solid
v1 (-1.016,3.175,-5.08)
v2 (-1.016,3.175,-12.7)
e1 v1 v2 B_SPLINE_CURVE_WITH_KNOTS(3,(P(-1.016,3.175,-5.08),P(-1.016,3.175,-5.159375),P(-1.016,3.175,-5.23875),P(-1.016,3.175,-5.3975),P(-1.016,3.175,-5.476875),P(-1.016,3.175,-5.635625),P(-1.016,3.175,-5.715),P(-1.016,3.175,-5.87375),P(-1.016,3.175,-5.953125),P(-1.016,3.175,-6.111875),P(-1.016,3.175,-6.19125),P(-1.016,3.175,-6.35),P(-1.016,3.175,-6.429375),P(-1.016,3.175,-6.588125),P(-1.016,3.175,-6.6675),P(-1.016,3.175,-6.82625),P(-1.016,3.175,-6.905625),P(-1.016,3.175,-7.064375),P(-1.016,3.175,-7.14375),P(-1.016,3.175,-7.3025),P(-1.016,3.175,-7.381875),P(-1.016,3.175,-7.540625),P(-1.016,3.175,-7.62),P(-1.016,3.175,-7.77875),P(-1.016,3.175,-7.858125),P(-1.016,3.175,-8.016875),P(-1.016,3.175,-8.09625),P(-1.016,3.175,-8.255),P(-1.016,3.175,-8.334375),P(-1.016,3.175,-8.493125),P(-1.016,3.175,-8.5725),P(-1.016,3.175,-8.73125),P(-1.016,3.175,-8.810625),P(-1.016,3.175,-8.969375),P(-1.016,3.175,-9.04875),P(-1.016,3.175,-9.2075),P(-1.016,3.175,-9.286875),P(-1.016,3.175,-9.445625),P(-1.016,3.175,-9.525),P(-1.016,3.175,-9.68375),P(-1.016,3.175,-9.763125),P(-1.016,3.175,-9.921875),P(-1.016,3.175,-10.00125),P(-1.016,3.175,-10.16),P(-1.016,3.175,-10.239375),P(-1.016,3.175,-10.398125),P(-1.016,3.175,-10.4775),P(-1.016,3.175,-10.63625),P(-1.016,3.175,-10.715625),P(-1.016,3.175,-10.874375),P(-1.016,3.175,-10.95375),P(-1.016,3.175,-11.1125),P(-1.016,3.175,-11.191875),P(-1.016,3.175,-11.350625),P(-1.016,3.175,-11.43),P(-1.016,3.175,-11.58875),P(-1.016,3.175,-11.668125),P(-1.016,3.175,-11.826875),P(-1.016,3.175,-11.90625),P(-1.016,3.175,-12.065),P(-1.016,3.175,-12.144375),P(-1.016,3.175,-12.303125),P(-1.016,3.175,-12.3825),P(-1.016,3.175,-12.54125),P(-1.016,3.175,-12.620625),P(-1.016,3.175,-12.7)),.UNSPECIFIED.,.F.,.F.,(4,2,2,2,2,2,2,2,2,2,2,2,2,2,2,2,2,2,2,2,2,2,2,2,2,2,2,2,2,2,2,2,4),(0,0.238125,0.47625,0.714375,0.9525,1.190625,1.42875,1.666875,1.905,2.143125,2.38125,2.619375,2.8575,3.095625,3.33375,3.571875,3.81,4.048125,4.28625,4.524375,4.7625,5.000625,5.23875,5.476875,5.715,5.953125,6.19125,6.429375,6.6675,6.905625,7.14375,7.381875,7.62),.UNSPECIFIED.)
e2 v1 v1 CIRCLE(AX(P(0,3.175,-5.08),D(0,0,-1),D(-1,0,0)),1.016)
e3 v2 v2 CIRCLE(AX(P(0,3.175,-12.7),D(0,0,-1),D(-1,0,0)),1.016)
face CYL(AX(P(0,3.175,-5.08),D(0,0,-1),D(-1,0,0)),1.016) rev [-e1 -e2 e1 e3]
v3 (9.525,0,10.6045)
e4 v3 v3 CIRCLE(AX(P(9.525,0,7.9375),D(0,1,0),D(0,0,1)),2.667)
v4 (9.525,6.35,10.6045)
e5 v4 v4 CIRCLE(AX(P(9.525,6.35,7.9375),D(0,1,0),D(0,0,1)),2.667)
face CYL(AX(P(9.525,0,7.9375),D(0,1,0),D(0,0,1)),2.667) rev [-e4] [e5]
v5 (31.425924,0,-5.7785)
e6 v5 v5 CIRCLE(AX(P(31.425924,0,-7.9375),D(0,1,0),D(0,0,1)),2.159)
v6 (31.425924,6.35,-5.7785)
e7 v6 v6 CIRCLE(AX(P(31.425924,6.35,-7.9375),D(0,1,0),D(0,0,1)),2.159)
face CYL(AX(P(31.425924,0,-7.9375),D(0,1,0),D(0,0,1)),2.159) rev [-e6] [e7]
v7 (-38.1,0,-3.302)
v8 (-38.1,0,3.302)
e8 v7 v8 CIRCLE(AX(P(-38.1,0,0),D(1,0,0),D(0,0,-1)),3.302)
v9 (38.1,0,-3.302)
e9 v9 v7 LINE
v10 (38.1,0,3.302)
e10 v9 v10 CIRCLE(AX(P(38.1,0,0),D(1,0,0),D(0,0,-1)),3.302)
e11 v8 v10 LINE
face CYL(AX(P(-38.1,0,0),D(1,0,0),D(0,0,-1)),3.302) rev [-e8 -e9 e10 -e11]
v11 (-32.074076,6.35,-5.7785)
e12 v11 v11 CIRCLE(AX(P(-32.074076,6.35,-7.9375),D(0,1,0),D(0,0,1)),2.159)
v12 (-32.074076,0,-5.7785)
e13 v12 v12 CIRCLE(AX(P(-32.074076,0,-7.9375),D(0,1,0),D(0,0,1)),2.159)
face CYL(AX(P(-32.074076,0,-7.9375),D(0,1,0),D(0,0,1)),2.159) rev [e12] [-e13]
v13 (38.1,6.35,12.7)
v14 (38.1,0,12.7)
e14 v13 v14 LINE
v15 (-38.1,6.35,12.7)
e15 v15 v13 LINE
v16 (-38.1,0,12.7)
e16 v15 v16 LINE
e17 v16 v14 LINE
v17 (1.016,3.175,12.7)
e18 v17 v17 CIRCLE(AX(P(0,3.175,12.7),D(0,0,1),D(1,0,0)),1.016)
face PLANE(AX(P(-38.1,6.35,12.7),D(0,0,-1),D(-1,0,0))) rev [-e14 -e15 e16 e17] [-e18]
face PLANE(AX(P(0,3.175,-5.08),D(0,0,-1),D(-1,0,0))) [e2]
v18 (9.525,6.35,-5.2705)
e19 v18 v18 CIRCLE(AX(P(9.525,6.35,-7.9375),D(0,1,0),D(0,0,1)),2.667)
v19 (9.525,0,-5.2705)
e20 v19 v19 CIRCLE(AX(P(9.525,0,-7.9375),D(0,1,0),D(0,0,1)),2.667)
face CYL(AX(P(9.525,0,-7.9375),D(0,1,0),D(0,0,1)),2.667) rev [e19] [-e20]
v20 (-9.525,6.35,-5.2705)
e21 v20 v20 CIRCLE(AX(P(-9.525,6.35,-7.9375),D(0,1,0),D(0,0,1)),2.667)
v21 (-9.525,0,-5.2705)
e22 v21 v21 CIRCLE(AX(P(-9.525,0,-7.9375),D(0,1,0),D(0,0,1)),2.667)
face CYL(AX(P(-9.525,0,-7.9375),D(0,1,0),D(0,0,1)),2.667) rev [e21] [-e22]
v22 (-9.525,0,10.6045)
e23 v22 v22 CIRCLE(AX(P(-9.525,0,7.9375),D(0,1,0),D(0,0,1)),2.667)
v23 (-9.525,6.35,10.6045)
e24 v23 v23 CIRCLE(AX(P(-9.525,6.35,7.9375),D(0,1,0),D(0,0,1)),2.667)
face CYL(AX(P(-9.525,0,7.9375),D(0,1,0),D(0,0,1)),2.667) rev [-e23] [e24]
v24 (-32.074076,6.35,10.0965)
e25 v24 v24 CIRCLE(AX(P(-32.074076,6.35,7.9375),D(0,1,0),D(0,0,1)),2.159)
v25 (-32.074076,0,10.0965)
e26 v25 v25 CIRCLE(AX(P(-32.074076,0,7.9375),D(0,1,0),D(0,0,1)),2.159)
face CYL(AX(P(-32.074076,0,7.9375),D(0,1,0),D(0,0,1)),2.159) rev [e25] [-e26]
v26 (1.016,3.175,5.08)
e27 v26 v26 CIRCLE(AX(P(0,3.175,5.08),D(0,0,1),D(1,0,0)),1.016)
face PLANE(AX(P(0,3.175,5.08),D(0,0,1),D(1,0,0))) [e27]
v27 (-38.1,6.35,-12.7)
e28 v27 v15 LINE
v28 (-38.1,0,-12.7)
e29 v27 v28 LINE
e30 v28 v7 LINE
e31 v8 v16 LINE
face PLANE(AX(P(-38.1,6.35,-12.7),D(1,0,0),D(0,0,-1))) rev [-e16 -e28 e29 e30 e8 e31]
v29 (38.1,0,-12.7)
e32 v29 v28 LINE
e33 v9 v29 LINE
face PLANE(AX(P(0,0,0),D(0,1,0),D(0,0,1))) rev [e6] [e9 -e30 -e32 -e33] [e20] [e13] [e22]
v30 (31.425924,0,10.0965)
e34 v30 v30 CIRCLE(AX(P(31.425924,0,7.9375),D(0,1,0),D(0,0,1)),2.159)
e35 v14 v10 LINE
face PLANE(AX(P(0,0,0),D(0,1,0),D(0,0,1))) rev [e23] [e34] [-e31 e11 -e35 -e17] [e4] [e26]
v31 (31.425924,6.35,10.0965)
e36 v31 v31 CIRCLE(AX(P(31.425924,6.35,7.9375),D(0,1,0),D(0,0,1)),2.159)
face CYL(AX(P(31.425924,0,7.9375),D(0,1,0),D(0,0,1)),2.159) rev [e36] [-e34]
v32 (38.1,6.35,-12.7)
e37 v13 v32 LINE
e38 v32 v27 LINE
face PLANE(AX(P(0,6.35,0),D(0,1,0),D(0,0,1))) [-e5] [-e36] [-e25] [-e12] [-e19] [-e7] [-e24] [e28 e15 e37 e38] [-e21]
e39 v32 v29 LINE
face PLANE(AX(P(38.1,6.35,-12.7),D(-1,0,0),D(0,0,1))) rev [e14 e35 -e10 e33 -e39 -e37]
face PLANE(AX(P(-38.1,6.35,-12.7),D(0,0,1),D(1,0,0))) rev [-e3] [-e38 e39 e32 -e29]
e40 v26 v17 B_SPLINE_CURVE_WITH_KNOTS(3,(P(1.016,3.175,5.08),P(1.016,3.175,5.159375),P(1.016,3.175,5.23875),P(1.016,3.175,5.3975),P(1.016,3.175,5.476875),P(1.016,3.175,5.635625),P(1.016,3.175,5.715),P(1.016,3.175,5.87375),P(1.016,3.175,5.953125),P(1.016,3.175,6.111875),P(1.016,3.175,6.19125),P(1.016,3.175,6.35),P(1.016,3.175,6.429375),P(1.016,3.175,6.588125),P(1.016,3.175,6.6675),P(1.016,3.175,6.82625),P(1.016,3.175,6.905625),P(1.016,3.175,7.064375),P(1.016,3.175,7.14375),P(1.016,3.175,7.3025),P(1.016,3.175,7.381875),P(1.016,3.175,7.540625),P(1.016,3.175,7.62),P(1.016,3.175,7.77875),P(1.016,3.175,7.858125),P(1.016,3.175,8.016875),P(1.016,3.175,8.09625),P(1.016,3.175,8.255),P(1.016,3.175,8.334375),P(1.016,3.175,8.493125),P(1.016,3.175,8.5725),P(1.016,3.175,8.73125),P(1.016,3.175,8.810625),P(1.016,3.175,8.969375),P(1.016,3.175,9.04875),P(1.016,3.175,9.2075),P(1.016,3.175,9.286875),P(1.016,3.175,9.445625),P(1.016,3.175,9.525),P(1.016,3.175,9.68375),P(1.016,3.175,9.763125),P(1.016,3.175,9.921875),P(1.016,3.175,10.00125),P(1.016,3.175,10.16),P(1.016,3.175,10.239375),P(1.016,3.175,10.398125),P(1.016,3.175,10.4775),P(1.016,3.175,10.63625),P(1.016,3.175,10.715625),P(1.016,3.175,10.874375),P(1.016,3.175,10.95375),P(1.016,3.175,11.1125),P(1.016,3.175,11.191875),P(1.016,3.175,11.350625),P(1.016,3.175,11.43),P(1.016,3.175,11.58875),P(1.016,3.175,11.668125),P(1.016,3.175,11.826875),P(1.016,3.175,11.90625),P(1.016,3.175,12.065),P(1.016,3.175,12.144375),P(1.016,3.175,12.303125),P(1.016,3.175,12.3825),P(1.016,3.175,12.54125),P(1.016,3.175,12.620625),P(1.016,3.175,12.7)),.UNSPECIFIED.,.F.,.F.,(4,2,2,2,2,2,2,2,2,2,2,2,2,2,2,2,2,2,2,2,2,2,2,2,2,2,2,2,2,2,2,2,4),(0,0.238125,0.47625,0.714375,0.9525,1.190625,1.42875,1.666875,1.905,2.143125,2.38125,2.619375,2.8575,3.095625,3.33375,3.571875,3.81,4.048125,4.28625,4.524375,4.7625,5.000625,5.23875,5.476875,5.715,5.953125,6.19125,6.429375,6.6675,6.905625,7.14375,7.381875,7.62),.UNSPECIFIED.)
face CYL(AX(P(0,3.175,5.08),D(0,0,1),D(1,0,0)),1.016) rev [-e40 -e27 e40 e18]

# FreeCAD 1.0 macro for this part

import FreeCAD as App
import Part
import Sketcher
from FreeCAD import Vector
Q = App.Units.Quantity

doc = App.newDocument("Part")
body = doc.addObject("PartDesign::Body", "Body")

# Sketch on XZ plane
sketch1 = body.newObject("Sketcher::SketchObject", "Sketch")
sketch1.AttachmentSupport = (doc.getObject("XZ_Plane"), [""])
sketch1.MapMode = "FlatFace"
sketch1.addGeometry([
    Part.LineSegment(Vector(-38.1, -12.7, 0), Vector(-38.1, 12.7, 0)),
    Part.LineSegment(Vector(-38.1, 12.7, 0), Vector(38.1, 12.7, 0)),
    Part.LineSegment(Vector(38.1, 12.7, 0), Vector(38.1, -12.7, 0)),
    Part.LineSegment(Vector(38.1, -12.7, 0), Vector(-38.1, -12.7, 0)),
], False)
sketch1.addConstraint([
    Sketcher.Constraint("Coincident", 0, 2, 1, 1),
    Sketcher.Constraint("Coincident", 1, 2, 2, 1),
    Sketcher.Constraint("Coincident", 2, 2, 3, 1),
    Sketcher.Constraint("Coincident", 3, 2, 0, 1),
    Sketcher.Constraint("Vertical", 0),
    Sketcher.Constraint("Horizontal", 1),
    Sketcher.Constraint("Vertical", 2),
    Sketcher.Constraint("Horizontal", 3),
    Sketcher.Constraint("Symmetric", 0, 2, 2, 2, -1, 1),
    Sketcher.Constraint("DistanceX", 1, 1, 1, 2, Q("3 in")),
    Sketcher.Constraint("DistanceY", 0, 1, 0, 2, Q("1 in")),
])
pad1 = body.newObject("PartDesign::Pad", "Pad")
pad1.Profile = sketch1
pad1.Length = Q("0.25 in")
pad1.Reversed = True

# Sketch on XZ plane
sketch2 = body.newObject("Sketcher::SketchObject", "Sketch001")
sketch2.AttachmentSupport = (doc.getObject("XZ_Plane"), [""])
sketch2.MapMode = "FlatFace"
sketch2.AttachmentOffset = App.Placement(Vector(0, 0, -0.25 * 25.4), App.Rotation())
sketch2.addGeometry([
    Part.Circle(Vector(-32.074076, -7.9375, 0), Vector(0, 0, 1), 2.159),
    Part.Circle(Vector(-32.074076, 7.9375, 0), Vector(0, 0, 1), 2.159),
    Part.Circle(Vector(31.425924, -7.9375, 0), Vector(0, 0, 1), 2.159),
    Part.Circle(Vector(31.425924, 7.9375, 0), Vector(0, 0, 1), 2.159),
], False)
sketch2.addConstraint([
    Sketcher.Constraint("Equal", 0, 1),
    Sketcher.Constraint("Equal", 1, 2),
    Sketcher.Constraint("Equal", 2, 3),
    Sketcher.Constraint("Symmetric", 0, 3, 1, 3, -1),
    Sketcher.Constraint("Symmetric", 2, 3, 3, 3, -1),
    Sketcher.Constraint("Horizontal", 0, 3, 2, 3),
    Sketcher.Constraint("Diameter", 0, Q("0.17 in")),
    Sketcher.Constraint("DistanceX", 0, 3, 2, 3, Q("2.5 in")),
    Sketcher.Constraint("DistanceY", 0, 3, -1, 1, Q("0.3125 in")),
    Sketcher.Constraint("DistanceX", 0, 3, -1, 1, Q("32.074076 mm")),
])
pocket1 = body.newObject("PartDesign::Pocket", "Pocket")
pocket1.Profile = sketch2
pocket1.Type = "ThroughAll"
pocket1.Reversed = True

# Sketch on XZ plane
sketch3 = body.newObject("Sketcher::SketchObject", "Sketch002")
sketch3.AttachmentSupport = (doc.getObject("XZ_Plane"), [""])
sketch3.MapMode = "FlatFace"
sketch3.AttachmentOffset = App.Placement(Vector(0, 0, -0.25 * 25.4), App.Rotation())
sketch3.addGeometry([
    Part.Circle(Vector(-9.525, -7.9375, 0), Vector(0, 0, 1), 2.667),
    Part.Circle(Vector(-9.525, 7.9375, 0), Vector(0, 0, 1), 2.667),
    Part.Circle(Vector(9.525, -7.9375, 0), Vector(0, 0, 1), 2.667),
    Part.Circle(Vector(9.525, 7.9375, 0), Vector(0, 0, 1), 2.667),
], False)
sketch3.addConstraint([
    Sketcher.Constraint("Equal", 0, 1),
    Sketcher.Constraint("Equal", 1, 2),
    Sketcher.Constraint("Equal", 2, 3),
    Sketcher.Constraint("Symmetric", 1, 3, 2, 3, -1, 1),
    Sketcher.Constraint("Symmetric", 0, 3, 3, 3, -1, 1),
    Sketcher.Constraint("Symmetric", 0, 3, 2, 3, -2),
    Sketcher.Constraint("Diameter", 0, Q("0.21 in")),
    Sketcher.Constraint("DistanceX", 0, 3, 2, 3, Q("0.75 in")),
    Sketcher.Constraint("DistanceY", 0, 3, -1, 1, Q("0.3125 in")),
])
pocket2 = body.newObject("PartDesign::Pocket", "Pocket001")
pocket2.Profile = sketch3
pocket2.Type = "ThroughAll"
pocket2.Reversed = True

# Sketch on XY plane
sketch4 = body.newObject("Sketcher::SketchObject", "Sketch003")
sketch4.AttachmentSupport = (doc.getObject("XY_Plane"), [""])
sketch4.MapMode = "FlatFace"
sketch4.AttachmentOffset = App.Placement(Vector(0, 0, 0.5 * 25.4), App.Rotation())
sketch4.addGeometry(Part.Circle(Vector(0, 3.175, 0), Vector(0, 0, 1), 1.016), False)
sketch4.addConstraint([
    Sketcher.Constraint("PointOnObject", 0, 3, -2),
    Sketcher.Constraint("Diameter", 0, Q("0.08 in")),
    Sketcher.Constraint("DistanceY", -1, 1, 0, 3, Q("0.125 in")),
])
pocket3 = body.newObject("PartDesign::Pocket", "Pocket002")
pocket3.Profile = sketch4
pocket3.Length = Q("0.3 in")

# Sketch on XY plane
sketch5 = body.newObject("Sketcher::SketchObject", "Sketch004")
sketch5.AttachmentSupport = (doc.getObject("XY_Plane"), [""])
sketch5.MapMode = "FlatFace"
sketch5.AttachmentOffset = App.Placement(Vector(0, 0, -0.2 * 25.4), App.Rotation())
sketch5.addGeometry(Part.Circle(Vector(0, 3.175, 0), Vector(0, 0, 1), 1.016), False)
sketch5.addConstraint([
    Sketcher.Constraint("PointOnObject", 0, 3, -2),
    Sketcher.Constraint("Diameter", 0, Q("0.08 in")),
    Sketcher.Constraint("DistanceY", -1, 1, 0, 3, Q("0.125 in")),
])
pocket4 = body.newObject("PartDesign::Pocket", "Pocket003")
pocket4.Profile = sketch5
pocket4.Length = Q("0.3 in")

# Sketch on YZ plane
sketch6 = body.newObject("Sketcher::SketchObject", "Sketch005")
sketch6.AttachmentSupport = (doc.getObject("YZ_Plane"), [""])
sketch6.MapMode = "FlatFace"
sketch6.AttachmentOffset = App.Placement(Vector(0, 0, 1.5 * 25.4), App.Rotation())
sketch6.addGeometry(Part.Circle(Vector(0, 0, 0), Vector(0, 0, 1), 3.302), False)
sketch6.addConstraint([
    Sketcher.Constraint("Coincident", 0, 3, -1, 1),
    Sketcher.Constraint("Diameter", 0, Q("0.26 in")),
])
pocket5 = body.newObject("PartDesign::Pocket", "Pocket004")
pocket5.Profile = sketch6
pocket5.Type = "ThroughAll"

doc.recompute()
